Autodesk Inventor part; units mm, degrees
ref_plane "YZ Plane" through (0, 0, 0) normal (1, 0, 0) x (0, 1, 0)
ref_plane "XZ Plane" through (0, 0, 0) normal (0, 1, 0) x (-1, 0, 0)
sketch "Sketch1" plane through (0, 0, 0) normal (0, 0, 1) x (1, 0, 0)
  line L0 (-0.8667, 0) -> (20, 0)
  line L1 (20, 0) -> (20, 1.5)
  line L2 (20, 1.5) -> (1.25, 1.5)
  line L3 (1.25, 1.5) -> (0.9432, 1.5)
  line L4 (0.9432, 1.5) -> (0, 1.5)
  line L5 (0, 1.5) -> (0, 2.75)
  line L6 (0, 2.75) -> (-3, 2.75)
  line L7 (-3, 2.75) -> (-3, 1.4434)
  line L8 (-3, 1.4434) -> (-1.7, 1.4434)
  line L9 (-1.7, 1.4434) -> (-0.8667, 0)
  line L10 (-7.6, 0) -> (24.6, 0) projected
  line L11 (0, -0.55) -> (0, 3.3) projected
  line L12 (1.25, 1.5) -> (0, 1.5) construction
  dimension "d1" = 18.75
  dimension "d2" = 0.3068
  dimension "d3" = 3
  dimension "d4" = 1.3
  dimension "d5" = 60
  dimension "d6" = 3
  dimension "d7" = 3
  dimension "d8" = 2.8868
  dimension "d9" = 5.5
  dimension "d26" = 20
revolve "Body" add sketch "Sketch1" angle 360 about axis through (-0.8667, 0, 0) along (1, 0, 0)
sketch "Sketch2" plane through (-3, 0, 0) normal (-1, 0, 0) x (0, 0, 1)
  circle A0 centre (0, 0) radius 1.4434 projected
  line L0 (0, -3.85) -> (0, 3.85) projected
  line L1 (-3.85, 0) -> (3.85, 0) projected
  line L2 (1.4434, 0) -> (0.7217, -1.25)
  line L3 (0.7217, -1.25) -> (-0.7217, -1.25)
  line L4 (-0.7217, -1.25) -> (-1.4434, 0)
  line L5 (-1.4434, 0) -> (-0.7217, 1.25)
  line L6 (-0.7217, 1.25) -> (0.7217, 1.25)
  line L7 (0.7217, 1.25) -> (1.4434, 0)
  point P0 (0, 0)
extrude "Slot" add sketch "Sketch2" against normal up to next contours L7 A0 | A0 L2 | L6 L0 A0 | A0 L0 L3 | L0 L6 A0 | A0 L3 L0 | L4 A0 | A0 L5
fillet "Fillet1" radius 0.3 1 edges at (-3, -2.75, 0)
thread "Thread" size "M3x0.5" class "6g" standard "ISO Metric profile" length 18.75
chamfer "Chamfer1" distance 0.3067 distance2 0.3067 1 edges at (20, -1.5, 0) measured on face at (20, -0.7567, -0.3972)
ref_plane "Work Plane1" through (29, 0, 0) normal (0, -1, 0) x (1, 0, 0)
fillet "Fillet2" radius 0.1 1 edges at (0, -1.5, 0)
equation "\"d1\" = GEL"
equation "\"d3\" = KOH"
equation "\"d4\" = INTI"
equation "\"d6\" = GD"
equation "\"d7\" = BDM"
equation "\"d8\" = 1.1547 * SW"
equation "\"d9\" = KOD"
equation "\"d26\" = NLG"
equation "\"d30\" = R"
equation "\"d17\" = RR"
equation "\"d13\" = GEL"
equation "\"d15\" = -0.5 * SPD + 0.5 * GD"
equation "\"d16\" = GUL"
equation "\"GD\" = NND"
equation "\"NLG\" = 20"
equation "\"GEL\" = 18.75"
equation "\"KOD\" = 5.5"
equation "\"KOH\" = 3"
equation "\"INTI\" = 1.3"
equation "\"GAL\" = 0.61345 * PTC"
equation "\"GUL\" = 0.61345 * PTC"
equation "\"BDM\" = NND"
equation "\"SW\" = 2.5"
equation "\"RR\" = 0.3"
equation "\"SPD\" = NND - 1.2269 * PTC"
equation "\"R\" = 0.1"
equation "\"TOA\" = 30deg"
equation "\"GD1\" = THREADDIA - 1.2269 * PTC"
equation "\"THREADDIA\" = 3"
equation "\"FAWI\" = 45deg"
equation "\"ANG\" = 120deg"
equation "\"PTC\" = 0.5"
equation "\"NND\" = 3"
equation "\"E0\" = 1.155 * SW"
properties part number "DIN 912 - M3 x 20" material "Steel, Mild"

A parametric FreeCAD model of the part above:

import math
import FreeCAD as App
import Part
import Sketcher
from FreeCAD import Vector
Q = App.Units.Quantity


def edges_at(feature, points):
    """Names of the edges that pass closest to the given points."""
    edges = feature.Shape.Edges
    near = lambda p: min(range(len(edges)), key=lambda i: edges[i].distToShape(Part.Vertex(*p))[0])
    return sorted({f"Edge{near(p) + 1}" for p in points})

doc = App.newDocument("Part")
params = doc.addObject("Spreadsheet::Sheet", "Params")
for row, (alias, value) in enumerate([
    ("sketch1_width", "20 mm"),
    ("sketch1_width2", "3 mm"),
    ("sketch1_width3", "1.3 mm"),
    ("sketch1_height", "1.5 mm"),
    ("sketch1_height2", "1.25 mm"),
    ("revolution_angle", "360 deg"),
    ("fillet_radius", "0.3 mm"),
    ("chamfer_size", "0.3067 mm"),
    ("chamfer_size2", "0.3067 mm"),
    ("fillet2_radius", "0.1 mm"),
], start=1):
    params.set(f"A{row}", alias)
    params.set(f"B{row}", "=" + value)
    params.setAlias(f"B{row}", alias)

body = doc.addObject("PartDesign::Body", "Body")

# Sketch on XY plane
sketch1 = doc.addObject("Sketcher::SketchObject", "Sketch")
body.addObject(sketch1)
sketch1.AttachmentSupport = (doc.XY_Plane, [""])
sketch1.MapMode = "FlatFace"
sketch1.addGeometry([
    Part.LineSegment(Vector(-1.7, 1.4, 0), Vector(-0.9, 0, 0)),  # 0
    Part.LineSegment(Vector(-0.9, 0, 0), Vector(20, 0, 0)),  # 1
    Part.LineSegment(Vector(20, 0, 0), Vector(20, 1.5, 0)),  # 2
    Part.LineSegment(Vector(20, 1.5, 0), Vector(0, 1.5, 0)),  # 3
    Part.LineSegment(Vector(0, 1.5, 0), Vector(0, 2.8, 0)),  # 4
    Part.LineSegment(Vector(0, 2.8, 0), Vector(-3, 2.8, 0)),  # 5
    Part.LineSegment(Vector(-3, 2.8, 0), Vector(-3, 1.4, 0)),  # 6
    Part.LineSegment(Vector(-3, 1.4, 0), Vector(-1.7, 1.4, 0)),  # 7
], False)
sketch1.addConstraint([
    Sketcher.Constraint("Coincident", 0, 2, 1, 1),
    Sketcher.Constraint("Coincident", 1, 2, 2, 1),
    Sketcher.Constraint("Coincident", 2, 2, 3, 1),
    Sketcher.Constraint("Coincident", 3, 2, 4, 1),
    Sketcher.Constraint("Coincident", 4, 2, 5, 1),
    Sketcher.Constraint("Coincident", 5, 2, 6, 1),
    Sketcher.Constraint("Coincident", 6, 2, 7, 1),
    Sketcher.Constraint("Coincident", 7, 2, 0, 1),
    Sketcher.Constraint("Horizontal", 1),
    Sketcher.Constraint("Vertical", 2),
    Sketcher.Constraint("Horizontal", 3),
    Sketcher.Constraint("Vertical", 4),
    Sketcher.Constraint("Horizontal", 5),
    Sketcher.Constraint("Vertical", 6),
    Sketcher.Constraint("Horizontal", 7),
    Sketcher.Constraint("PointOnObject", 0, 2, -1),
    Sketcher.Constraint("PointOnObject", 3, 2, -2),
    Sketcher.Constraint("DistanceX", 3, 2, 3, 1, 20.0),
    Sketcher.Constraint("DistanceX", 5, 2, 5, 1, 3.0),
    Sketcher.Constraint("DistanceX", 7, 1, 7, 2, 1.3),
    Sketcher.Constraint("DistanceY", 2, 1, 2, 2, 1.5),
    Sketcher.Constraint("DistanceY", 4, 1, 4, 2, 1.25),
    Sketcher.Constraint("DistanceX", 1, 1, 1, 2, 20.8667),
    Sketcher.Constraint("DistanceY", 6, 2, 6, 1, 1.3066),
])
sketch1.setExpression("Constraints[17]", "Params.sketch1_width")
sketch1.setExpression("Constraints[18]", "Params.sketch1_width2")
sketch1.setExpression("Constraints[19]", "Params.sketch1_width3")
sketch1.setExpression("Constraints[20]", "Params.sketch1_height")
sketch1.setExpression("Constraints[21]", "Params.sketch1_height2")
revolution = doc.addObject("PartDesign::Revolution", "Revolution")
body.addObject(revolution)
revolution.Profile = sketch1
revolution.ReferenceAxis = (sketch1, ["H_Axis"])
revolution.setExpression("Angle", "Params.revolution_angle")

# Sketch on YZ plane
sketch2 = doc.addObject("Sketcher::SketchObject", "Sketch001")
body.addObject(sketch2)
sketch2.AttachmentSupport = (doc.YZ_Plane, [""])
sketch2.MapMode = "FlatFace"
sketch2.AttachmentOffset = App.Placement(Vector(0, 0, -3), App.Rotation())
sketch2.addGeometry([
    Part.LineSegment(Vector(1.2, 0.7, 0), Vector(0, 1.4, 0)),  # 0
    Part.ArcOfCircle(Part.Circle(Vector(0, 0, 0), Vector(0, 0, 1), 1.4), math.radians(30), math.radians(90)),  # 1
    Part.ArcOfCircle(Part.Circle(Vector(0, 0, 0), Vector(0, 0, 1), 1.4), math.radians(90), math.radians(150)),  # 2
    Part.LineSegment(Vector(0, 1.4, 0), Vector(-1.2, 0.7, 0)),  # 3
    Part.ArcOfCircle(Part.Circle(Vector(0, 0, 0), Vector(0, 0, 1), 1.4), math.radians(-30), math.radians(30)),  # 4
    Part.LineSegment(Vector(1.2, 0.7, 0), Vector(1.2, -0.7, 0)),  # 5
    Part.LineSegment(Vector(-1.2, 0.7, 0), Vector(-1.2, -0.7, 0)),  # 6
    Part.ArcOfCircle(Part.Circle(Vector(0, 0, 0), Vector(0, 0, 1), 1.4), math.radians(150), math.radians(210)),  # 7
    Part.LineSegment(Vector(-1.2, -0.7, 0), Vector(0, -1.4, 0)),  # 8
    Part.ArcOfCircle(Part.Circle(Vector(0, 0, 0), Vector(0, 0, 1), 1.4), math.radians(-150), math.radians(-90)),  # 9
    Part.ArcOfCircle(Part.Circle(Vector(0, 0, 0), Vector(0, 0, 1), 1.4), math.radians(-90), math.radians(-30)),  # 10
    Part.LineSegment(Vector(0, -1.4, 0), Vector(1.2, -0.7, 0)),  # 11
], False)
sketch2.addConstraint([
    Sketcher.Constraint("Coincident", 0, 1, 1, 1),
    Sketcher.Constraint("Coincident", 1, 2, 0, 2),
    Sketcher.Constraint("Coincident", 2, 1, 3, 1),
    Sketcher.Constraint("Coincident", 3, 2, 2, 2),
    Sketcher.Constraint("Coincident", 4, 1, 5, 2),
    Sketcher.Constraint("Coincident", 5, 1, 4, 2),
    Sketcher.Constraint("Coincident", 6, 1, 7, 1),
    Sketcher.Constraint("Coincident", 7, 2, 6, 2),
    Sketcher.Constraint("Coincident", 8, 1, 9, 1),
    Sketcher.Constraint("Coincident", 9, 2, 8, 2),
    Sketcher.Constraint("Coincident", 10, 1, 11, 1),
    Sketcher.Constraint("Coincident", 11, 2, 10, 2),
    Sketcher.Constraint("Vertical", 5),
    Sketcher.Constraint("Vertical", 6),
    Sketcher.Constraint("Coincident", 1, 3, -1, 1),
    Sketcher.Constraint("Coincident", 2, 3, -1, 1),
    Sketcher.Constraint("Coincident", 4, 3, -1, 1),
    Sketcher.Constraint("Coincident", 7, 3, -1, 1),
    Sketcher.Constraint("Coincident", 9, 3, -1, 1),
    Sketcher.Constraint("Coincident", 10, 3, -1, 1),
    Sketcher.Constraint("Coincident", 2, 1, 1, 2),
    Sketcher.Constraint("Coincident", 5, 1, 0, 1),
    Sketcher.Constraint("Coincident", 6, 1, 3, 2),
    Sketcher.Constraint("Coincident", 8, 1, 7, 2),
    Sketcher.Constraint("Coincident", 10, 1, 9, 2),
    Sketcher.Constraint("PointOnObject", 1, 2, -2),
    Sketcher.Constraint("PointOnObject", 9, 2, -2),
    Sketcher.Constraint("Parallel", 0, 8),
    Sketcher.Constraint("Parallel", 3, 11),
    Sketcher.Constraint("Angle", 0, Q("149.9996 deg")),
    Sketcher.Constraint("Radius", 1, 1.4434),
])
pad1 = doc.addObject("PartDesign::Pad", "Pad")
body.addObject(pad1)
pad1.Profile = sketch2
pad1.Type = "UpToFirst"
doc.recompute()

fillet = doc.addObject("PartDesign::Fillet", "Fillet")
body.addObject(fillet)
fillet.Base = (pad1, edges_at(pad1, [(-3, -2.75, 0)]))
fillet.setExpression("Radius", "Params.fillet_radius")
doc.recompute()

chamfer = doc.addObject("PartDesign::Chamfer", "Chamfer")
body.addObject(chamfer)
chamfer.Base = (fillet, edges_at(fillet, [(20, -1.5, 0)]))
chamfer.ChamferType = "Two distances"
chamfer.setExpression("Size", "Params.chamfer_size")
chamfer.setExpression("Size2", "Params.chamfer_size2")
doc.recompute()

fillet2 = doc.addObject("PartDesign::Fillet", "Fillet001")
body.addObject(fillet2)
fillet2.Base = (chamfer, edges_at(chamfer, [(0, -1.5, 0)]))
fillet2.setExpression("Radius", "Params.fillet2_radius")

doc.recompute()
